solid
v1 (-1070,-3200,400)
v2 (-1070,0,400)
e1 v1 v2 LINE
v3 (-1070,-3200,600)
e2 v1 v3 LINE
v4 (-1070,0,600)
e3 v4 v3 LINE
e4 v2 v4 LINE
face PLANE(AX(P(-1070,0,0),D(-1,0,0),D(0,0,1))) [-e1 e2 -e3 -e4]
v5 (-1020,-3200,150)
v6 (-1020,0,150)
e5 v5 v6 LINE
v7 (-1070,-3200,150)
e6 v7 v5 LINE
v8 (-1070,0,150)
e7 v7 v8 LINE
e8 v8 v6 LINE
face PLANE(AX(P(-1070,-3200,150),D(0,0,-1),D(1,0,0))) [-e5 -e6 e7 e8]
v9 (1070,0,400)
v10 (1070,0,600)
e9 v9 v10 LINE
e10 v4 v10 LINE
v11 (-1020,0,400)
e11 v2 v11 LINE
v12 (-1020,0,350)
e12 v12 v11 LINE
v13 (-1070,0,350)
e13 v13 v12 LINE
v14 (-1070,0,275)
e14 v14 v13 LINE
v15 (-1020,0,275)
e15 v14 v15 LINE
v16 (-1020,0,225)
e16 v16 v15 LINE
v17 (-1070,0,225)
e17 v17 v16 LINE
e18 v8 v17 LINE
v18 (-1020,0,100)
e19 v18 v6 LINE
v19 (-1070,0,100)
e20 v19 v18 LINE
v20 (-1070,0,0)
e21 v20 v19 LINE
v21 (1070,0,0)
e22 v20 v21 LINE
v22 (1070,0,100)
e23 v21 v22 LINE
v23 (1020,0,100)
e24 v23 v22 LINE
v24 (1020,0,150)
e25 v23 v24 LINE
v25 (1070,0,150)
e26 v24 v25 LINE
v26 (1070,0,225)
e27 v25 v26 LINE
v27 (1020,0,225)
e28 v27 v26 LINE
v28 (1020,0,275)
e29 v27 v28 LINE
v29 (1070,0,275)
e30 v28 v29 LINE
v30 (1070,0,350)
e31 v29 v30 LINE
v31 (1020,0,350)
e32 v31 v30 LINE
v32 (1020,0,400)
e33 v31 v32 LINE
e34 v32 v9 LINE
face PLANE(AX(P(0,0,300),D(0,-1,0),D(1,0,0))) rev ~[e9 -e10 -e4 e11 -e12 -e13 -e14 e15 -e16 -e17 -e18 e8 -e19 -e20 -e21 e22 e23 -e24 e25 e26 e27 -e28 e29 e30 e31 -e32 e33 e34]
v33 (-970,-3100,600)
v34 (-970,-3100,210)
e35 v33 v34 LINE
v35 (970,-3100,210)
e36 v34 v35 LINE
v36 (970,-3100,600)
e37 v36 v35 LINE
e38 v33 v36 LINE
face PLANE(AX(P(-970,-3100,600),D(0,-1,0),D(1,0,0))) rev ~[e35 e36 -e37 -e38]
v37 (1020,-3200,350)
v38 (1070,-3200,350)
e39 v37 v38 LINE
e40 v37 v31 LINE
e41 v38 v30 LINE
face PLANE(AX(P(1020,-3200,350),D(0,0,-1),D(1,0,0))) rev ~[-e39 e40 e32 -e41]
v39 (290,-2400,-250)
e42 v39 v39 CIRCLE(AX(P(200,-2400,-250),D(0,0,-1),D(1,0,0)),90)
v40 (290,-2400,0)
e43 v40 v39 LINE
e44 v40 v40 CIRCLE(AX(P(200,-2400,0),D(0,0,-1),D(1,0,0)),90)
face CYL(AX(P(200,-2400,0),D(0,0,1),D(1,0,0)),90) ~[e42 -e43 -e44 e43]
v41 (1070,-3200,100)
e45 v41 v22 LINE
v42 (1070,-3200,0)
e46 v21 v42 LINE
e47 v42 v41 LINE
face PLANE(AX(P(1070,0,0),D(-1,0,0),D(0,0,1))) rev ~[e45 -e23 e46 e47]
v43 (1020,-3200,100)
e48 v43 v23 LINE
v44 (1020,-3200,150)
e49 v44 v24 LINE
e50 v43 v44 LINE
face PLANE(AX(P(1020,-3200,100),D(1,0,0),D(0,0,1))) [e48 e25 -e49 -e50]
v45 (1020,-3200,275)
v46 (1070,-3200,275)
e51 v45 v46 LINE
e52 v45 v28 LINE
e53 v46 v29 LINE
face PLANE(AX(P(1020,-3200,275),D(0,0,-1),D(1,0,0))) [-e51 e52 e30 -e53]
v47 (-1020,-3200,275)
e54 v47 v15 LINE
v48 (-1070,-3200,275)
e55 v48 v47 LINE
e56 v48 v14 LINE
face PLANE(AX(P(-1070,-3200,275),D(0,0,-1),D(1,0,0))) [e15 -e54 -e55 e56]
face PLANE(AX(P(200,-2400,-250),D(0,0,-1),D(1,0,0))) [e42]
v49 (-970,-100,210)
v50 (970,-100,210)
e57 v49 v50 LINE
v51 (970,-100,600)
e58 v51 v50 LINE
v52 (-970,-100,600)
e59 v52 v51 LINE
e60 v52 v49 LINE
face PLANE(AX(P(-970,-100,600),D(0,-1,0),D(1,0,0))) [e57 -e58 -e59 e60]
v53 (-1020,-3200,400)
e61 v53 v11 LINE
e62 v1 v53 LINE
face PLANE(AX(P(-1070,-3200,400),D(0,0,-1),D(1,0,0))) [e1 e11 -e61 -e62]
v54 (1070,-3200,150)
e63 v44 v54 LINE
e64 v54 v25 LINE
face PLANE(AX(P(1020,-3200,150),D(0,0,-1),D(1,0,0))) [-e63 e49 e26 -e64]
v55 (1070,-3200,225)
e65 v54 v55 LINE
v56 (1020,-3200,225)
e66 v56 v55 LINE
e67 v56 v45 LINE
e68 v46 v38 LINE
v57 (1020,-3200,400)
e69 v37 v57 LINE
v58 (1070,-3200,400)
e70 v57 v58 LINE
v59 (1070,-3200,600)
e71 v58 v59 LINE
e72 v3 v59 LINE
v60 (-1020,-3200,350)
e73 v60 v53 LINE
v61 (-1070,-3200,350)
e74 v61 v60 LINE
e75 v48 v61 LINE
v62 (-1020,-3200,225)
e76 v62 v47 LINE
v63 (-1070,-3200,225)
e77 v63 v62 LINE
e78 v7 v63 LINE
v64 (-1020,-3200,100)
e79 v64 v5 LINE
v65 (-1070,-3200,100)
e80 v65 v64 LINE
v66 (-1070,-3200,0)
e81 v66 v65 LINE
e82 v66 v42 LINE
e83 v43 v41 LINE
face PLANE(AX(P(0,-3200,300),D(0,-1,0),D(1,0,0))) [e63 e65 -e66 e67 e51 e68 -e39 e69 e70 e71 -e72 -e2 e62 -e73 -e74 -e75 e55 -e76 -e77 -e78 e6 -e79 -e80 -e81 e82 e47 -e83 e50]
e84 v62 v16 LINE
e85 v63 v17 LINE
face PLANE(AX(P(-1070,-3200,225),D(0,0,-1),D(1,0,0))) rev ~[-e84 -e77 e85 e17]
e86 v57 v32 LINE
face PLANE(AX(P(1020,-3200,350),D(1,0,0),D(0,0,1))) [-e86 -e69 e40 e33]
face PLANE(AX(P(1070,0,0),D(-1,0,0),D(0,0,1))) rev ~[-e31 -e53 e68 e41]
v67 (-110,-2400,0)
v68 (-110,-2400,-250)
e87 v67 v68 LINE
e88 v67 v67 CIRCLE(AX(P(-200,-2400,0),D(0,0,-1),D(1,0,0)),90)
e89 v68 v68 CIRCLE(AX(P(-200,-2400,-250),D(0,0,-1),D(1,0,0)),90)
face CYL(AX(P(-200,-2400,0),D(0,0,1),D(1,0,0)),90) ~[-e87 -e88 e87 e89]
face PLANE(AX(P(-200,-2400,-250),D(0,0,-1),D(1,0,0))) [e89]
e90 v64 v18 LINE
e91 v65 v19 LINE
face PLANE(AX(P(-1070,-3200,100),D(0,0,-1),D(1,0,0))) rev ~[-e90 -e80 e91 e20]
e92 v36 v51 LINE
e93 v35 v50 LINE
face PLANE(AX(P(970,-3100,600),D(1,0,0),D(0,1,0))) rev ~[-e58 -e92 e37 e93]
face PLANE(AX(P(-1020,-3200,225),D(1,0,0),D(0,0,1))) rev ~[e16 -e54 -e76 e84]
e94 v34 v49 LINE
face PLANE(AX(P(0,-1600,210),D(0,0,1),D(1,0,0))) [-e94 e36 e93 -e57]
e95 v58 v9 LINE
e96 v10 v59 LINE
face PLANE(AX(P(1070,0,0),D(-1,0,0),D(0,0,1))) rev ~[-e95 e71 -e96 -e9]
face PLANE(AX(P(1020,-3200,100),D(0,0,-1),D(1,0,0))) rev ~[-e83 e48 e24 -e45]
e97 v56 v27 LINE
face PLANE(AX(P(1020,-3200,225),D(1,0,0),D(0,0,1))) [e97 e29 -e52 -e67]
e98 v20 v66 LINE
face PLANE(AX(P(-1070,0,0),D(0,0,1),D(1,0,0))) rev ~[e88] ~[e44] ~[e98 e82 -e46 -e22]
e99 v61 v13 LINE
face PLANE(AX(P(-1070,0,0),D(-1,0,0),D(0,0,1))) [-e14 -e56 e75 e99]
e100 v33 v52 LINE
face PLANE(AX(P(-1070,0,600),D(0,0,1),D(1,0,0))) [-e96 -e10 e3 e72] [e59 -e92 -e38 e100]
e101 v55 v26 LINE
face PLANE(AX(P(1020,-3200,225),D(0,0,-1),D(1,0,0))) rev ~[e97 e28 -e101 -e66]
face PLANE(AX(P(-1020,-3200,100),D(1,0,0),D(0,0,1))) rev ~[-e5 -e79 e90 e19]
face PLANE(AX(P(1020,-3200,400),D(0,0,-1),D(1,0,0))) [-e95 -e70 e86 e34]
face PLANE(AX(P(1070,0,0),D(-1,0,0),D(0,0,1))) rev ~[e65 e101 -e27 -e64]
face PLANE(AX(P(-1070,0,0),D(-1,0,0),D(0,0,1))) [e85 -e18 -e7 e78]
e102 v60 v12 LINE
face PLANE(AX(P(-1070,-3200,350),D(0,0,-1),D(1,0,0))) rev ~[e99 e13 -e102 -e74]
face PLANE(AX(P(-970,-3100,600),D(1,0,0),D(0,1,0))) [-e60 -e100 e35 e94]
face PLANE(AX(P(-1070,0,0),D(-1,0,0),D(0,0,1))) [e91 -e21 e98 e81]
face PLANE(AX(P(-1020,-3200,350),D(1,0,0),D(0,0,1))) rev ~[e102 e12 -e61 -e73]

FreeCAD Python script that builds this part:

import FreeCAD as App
import Part
import Sketcher
from FreeCAD import Vector

doc = App.newDocument("Part")
body = doc.addObject("PartDesign::Body", "Body")

sketch1 = body.newObject("Sketcher::SketchObject", "Sketch")
sketch1.AttachmentSupport = (doc.getObject("XZ_Plane"), [""])
sketch1.MapMode = "FlatFace"
sketch1.addGeometry(Part.LineSegment(Vector(-1070, 600, 0), Vector(-1070, 0, 0)), False)
sketch1.addGeometry(Part.LineSegment(Vector(-1070, 0, 0), Vector(1070, 0, 0)), False)
sketch1.addGeometry(Part.LineSegment(Vector(1070, 0, 0), Vector(1070, 600, 0)), False)
sketch1.addGeometry(Part.LineSegment(Vector(1070, 600, 0), Vector(-1070, 600, 0)), False)
sketch1.addConstraint(Sketcher.Constraint("Coincident", 0, 2, 1, 1))
sketch1.addConstraint(Sketcher.Constraint("Coincident", 1, 2, 2, 1))
sketch1.addConstraint(Sketcher.Constraint("Coincident", 2, 2, 3, 1))
sketch1.addConstraint(Sketcher.Constraint("Coincident", 3, 2, 0, 1))
sketch1.addConstraint(Sketcher.Constraint("Vertical", 0))
sketch1.addConstraint(Sketcher.Constraint("Horizontal", 1))
sketch1.addConstraint(Sketcher.Constraint("Vertical", 2))
sketch1.addConstraint(Sketcher.Constraint("Horizontal", 3))
sketch1.addConstraint(Sketcher.Constraint("Symmetric", 0, 2, 1, 2, -1, 1))
sketch1.addConstraint(Sketcher.Constraint("DistanceX", 1, 1, 1, 2, 2140.0))
sketch1.addConstraint(Sketcher.Constraint("DistanceY", 0, 2, 0, 1, 600.0))
pad1 = body.newObject("PartDesign::Pad", "Pad")
pad1.Profile = sketch1
pad1.Length = 3200

sketch2 = body.newObject("Sketcher::SketchObject", "Sketch001")
sketch2.AttachmentSupport = (doc.getObject("XY_Plane"), [""])
sketch2.MapMode = "FlatFace"
sketch2.AttachmentOffset = App.Placement(Vector(0, 0, 600), App.Rotation())
sketch2.addGeometry(Part.LineSegment(Vector(-970, -100, 0), Vector(-970, -3100, 0)), False)
sketch2.addGeometry(Part.LineSegment(Vector(-970, -3100, 0), Vector(970, -3100, 0)), False)
sketch2.addGeometry(Part.LineSegment(Vector(970, -3100, 0), Vector(970, -100, 0)), False)
sketch2.addGeometry(Part.LineSegment(Vector(970, -100, 0), Vector(-970, -100, 0)), False)
sketch2.addConstraint(Sketcher.Constraint("Coincident", 0, 2, 1, 1))
sketch2.addConstraint(Sketcher.Constraint("Coincident", 1, 2, 2, 1))
sketch2.addConstraint(Sketcher.Constraint("Coincident", 2, 2, 3, 1))
sketch2.addConstraint(Sketcher.Constraint("Coincident", 3, 2, 0, 1))
sketch2.addConstraint(Sketcher.Constraint("Vertical", 0))
sketch2.addConstraint(Sketcher.Constraint("Horizontal", 1))
sketch2.addConstraint(Sketcher.Constraint("Vertical", 2))
sketch2.addConstraint(Sketcher.Constraint("Horizontal", 3))
sketch2.addConstraint(Sketcher.Constraint("DistanceX", 1, 1, 1, 2, 1940.0))
sketch2.addConstraint(Sketcher.Constraint("DistanceY", 0, 2, 0, 1, 3000.0))
sketch2.addConstraint(Sketcher.Constraint("DistanceX", 0, 2, -1, 1, 970.0))
sketch2.addConstraint(Sketcher.Constraint("DistanceY", 0, 2, -1, 1, 3100.0))
pocket1 = body.newObject("PartDesign::Pocket", "Pocket")
pocket1.Profile = sketch2
pocket1.Length = 390

sketch3 = body.newObject("Sketcher::SketchObject", "Sketch002")
sketch3.AttachmentSupport = (doc.getObject("XY_Plane"), [""])
sketch3.MapMode = "FlatFace"
sketch3.addGeometry(Part.Circle(Vector(-200, -2400, 0), Vector(0, 0, 1), 90), False)
sketch3.addGeometry(Part.Circle(Vector(200, -2400, 0), Vector(0, 0, 1), 90), False)
sketch3.addConstraint(Sketcher.Constraint("Equal", 0, 1))
sketch3.addConstraint(Sketcher.Constraint("Symmetric", 0, 3, 1, 3, -2))
sketch3.addConstraint(Sketcher.Constraint("Diameter", 0, 180.0))
sketch3.addConstraint(Sketcher.Constraint("DistanceX", 0, 3, -1, 1, 200.0))
sketch3.addConstraint(Sketcher.Constraint("DistanceY", 0, 3, -1, 1, 2400.0))
pad2 = body.newObject("PartDesign::Pad", "Pad001")
pad2.Profile = sketch3
pad2.Length = 250
pad2.Reversed = True

sketch4 = body.newObject("Sketcher::SketchObject", "Sketch003")
sketch4.AttachmentSupport = (doc.getObject("XZ_Plane"), [""])
sketch4.MapMode = "FlatFace"
sketch4.AttachmentOffset = App.Placement(Vector(0, 0, 3200), App.Rotation())
sketch4.addGeometry(Part.LineSegment(Vector(1020, 400, 0), Vector(1020, 350, 0)), False)
sketch4.addGeometry(Part.LineSegment(Vector(1020, 350, 0), Vector(1070, 350, 0)), False)
sketch4.addGeometry(Part.LineSegment(Vector(1070, 350, 0), Vector(1070, 400, 0)), False)
sketch4.addGeometry(Part.LineSegment(Vector(1070, 400, 0), Vector(1020, 400, 0)), False)
sketch4.addGeometry(Part.LineSegment(Vector(1020, 275, 0), Vector(1020, 225, 0)), False)
sketch4.addGeometry(Part.LineSegment(Vector(1020, 225, 0), Vector(1070, 225, 0)), False)
sketch4.addGeometry(Part.LineSegment(Vector(1070, 225, 0), Vector(1070, 275, 0)), False)
sketch4.addGeometry(Part.LineSegment(Vector(1070, 275, 0), Vector(1020, 275, 0)), False)
sketch4.addGeometry(Part.LineSegment(Vector(1020, 150, 0), Vector(1020, 100, 0)), False)
sketch4.addGeometry(Part.LineSegment(Vector(1020, 100, 0), Vector(1070, 100, 0)), False)
sketch4.addGeometry(Part.LineSegment(Vector(1070, 100, 0), Vector(1070, 150, 0)), False)
sketch4.addGeometry(Part.LineSegment(Vector(1070, 150, 0), Vector(1020, 150, 0)), False)
sketch4.addGeometry(Part.LineSegment(Vector(-1070, 150, 0), Vector(-1070, 100, 0)), False)
sketch4.addGeometry(Part.LineSegment(Vector(-1070, 100, 0), Vector(-1020, 100, 0)), False)
sketch4.addGeometry(Part.LineSegment(Vector(-1020, 100, 0), Vector(-1020, 150, 0)), False)
sketch4.addGeometry(Part.LineSegment(Vector(-1020, 150, 0), Vector(-1070, 150, 0)), False)
sketch4.addGeometry(Part.LineSegment(Vector(-1070, 275, 0), Vector(-1070, 225, 0)), False)
sketch4.addGeometry(Part.LineSegment(Vector(-1070, 225, 0), Vector(-1020, 225, 0)), False)
sketch4.addGeometry(Part.LineSegment(Vector(-1020, 225, 0), Vector(-1020, 275, 0)), False)
sketch4.addGeometry(Part.LineSegment(Vector(-1020, 275, 0), Vector(-1070, 275, 0)), False)
sketch4.addGeometry(Part.LineSegment(Vector(-1070, 400, 0), Vector(-1070, 350, 0)), False)
sketch4.addGeometry(Part.LineSegment(Vector(-1070, 350, 0), Vector(-1020, 350, 0)), False)
sketch4.addGeometry(Part.LineSegment(Vector(-1020, 350, 0), Vector(-1020, 400, 0)), False)
sketch4.addGeometry(Part.LineSegment(Vector(-1020, 400, 0), Vector(-1070, 400, 0)), False)
sketch4.addConstraint(Sketcher.Constraint("Coincident", 0, 2, 1, 1))
sketch4.addConstraint(Sketcher.Constraint("Coincident", 1, 2, 2, 1))
sketch4.addConstraint(Sketcher.Constraint("Coincident", 2, 2, 3, 1))
sketch4.addConstraint(Sketcher.Constraint("Coincident", 3, 2, 0, 1))
sketch4.addConstraint(Sketcher.Constraint("Coincident", 4, 2, 5, 1))
sketch4.addConstraint(Sketcher.Constraint("Coincident", 5, 2, 6, 1))
sketch4.addConstraint(Sketcher.Constraint("Coincident", 6, 2, 7, 1))
sketch4.addConstraint(Sketcher.Constraint("Coincident", 7, 2, 4, 1))
sketch4.addConstraint(Sketcher.Constraint("Coincident", 8, 2, 9, 1))
sketch4.addConstraint(Sketcher.Constraint("Coincident", 9, 2, 10, 1))
sketch4.addConstraint(Sketcher.Constraint("Coincident", 10, 2, 11, 1))
sketch4.addConstraint(Sketcher.Constraint("Coincident", 11, 2, 8, 1))
sketch4.addConstraint(Sketcher.Constraint("Coincident", 12, 2, 13, 1))
sketch4.addConstraint(Sketcher.Constraint("Coincident", 13, 2, 14, 1))
sketch4.addConstraint(Sketcher.Constraint("Coincident", 14, 2, 15, 1))
sketch4.addConstraint(Sketcher.Constraint("Coincident", 15, 2, 12, 1))
sketch4.addConstraint(Sketcher.Constraint("Coincident", 16, 2, 17, 1))
sketch4.addConstraint(Sketcher.Constraint("Coincident", 17, 2, 18, 1))
sketch4.addConstraint(Sketcher.Constraint("Coincident", 18, 2, 19, 1))
sketch4.addConstraint(Sketcher.Constraint("Coincident", 19, 2, 16, 1))
sketch4.addConstraint(Sketcher.Constraint("Coincident", 20, 2, 21, 1))
sketch4.addConstraint(Sketcher.Constraint("Coincident", 21, 2, 22, 1))
sketch4.addConstraint(Sketcher.Constraint("Coincident", 22, 2, 23, 1))
sketch4.addConstraint(Sketcher.Constraint("Coincident", 23, 2, 20, 1))
sketch4.addConstraint(Sketcher.Constraint("Vertical", 0))
sketch4.addConstraint(Sketcher.Constraint("Horizontal", 1))
sketch4.addConstraint(Sketcher.Constraint("Vertical", 2))
sketch4.addConstraint(Sketcher.Constraint("Horizontal", 3))
sketch4.addConstraint(Sketcher.Constraint("Vertical", 4))
sketch4.addConstraint(Sketcher.Constraint("Horizontal", 5))
sketch4.addConstraint(Sketcher.Constraint("Vertical", 6))
sketch4.addConstraint(Sketcher.Constraint("Horizontal", 7))
sketch4.addConstraint(Sketcher.Constraint("Vertical", 8))
sketch4.addConstraint(Sketcher.Constraint("Horizontal", 9))
sketch4.addConstraint(Sketcher.Constraint("Vertical", 10))
sketch4.addConstraint(Sketcher.Constraint("Horizontal", 11))
sketch4.addConstraint(Sketcher.Constraint("Vertical", 12))
sketch4.addConstraint(Sketcher.Constraint("Horizontal", 13))
sketch4.addConstraint(Sketcher.Constraint("Vertical", 14))
sketch4.addConstraint(Sketcher.Constraint("Horizontal", 15))
sketch4.addConstraint(Sketcher.Constraint("Vertical", 16))
sketch4.addConstraint(Sketcher.Constraint("Horizontal", 17))
sketch4.addConstraint(Sketcher.Constraint("Vertical", 18))
sketch4.addConstraint(Sketcher.Constraint("Horizontal", 19))
sketch4.addConstraint(Sketcher.Constraint("Vertical", 20))
sketch4.addConstraint(Sketcher.Constraint("Horizontal", 21))
sketch4.addConstraint(Sketcher.Constraint("Vertical", 22))
sketch4.addConstraint(Sketcher.Constraint("Horizontal", 23))
sketch4.addConstraint(Sketcher.Constraint("Symmetric", 9, 2, 12, 2, -2))
sketch4.addConstraint(Sketcher.Constraint("Symmetric", 11, 2, 14, 2, -2))
sketch4.addConstraint(Sketcher.Constraint("Symmetric", 5, 2, 16, 2, -2))
sketch4.addConstraint(Sketcher.Constraint("Symmetric", 7, 2, 18, 2, -2))
sketch4.addConstraint(Sketcher.Constraint("Symmetric", 1, 2, 20, 2, -2))
sketch4.addConstraint(Sketcher.Constraint("Symmetric", 3, 2, 22, 2, -2))
sketch4.addConstraint(Sketcher.Constraint("Vertical", 3, 2, 4, 2))
sketch4.addConstraint(Sketcher.Constraint("Vertical", 2, 2, 5, 2))
sketch4.addConstraint(Sketcher.Constraint("Vertical", 7, 2, 8, 2))
sketch4.addConstraint(Sketcher.Constraint("Vertical", 6, 2, 9, 2))
sketch4.addConstraint(Sketcher.Constraint("Equal", 23, 0))
sketch4.addConstraint(Sketcher.Constraint("Equal", 2, 4))
sketch4.addConstraint(Sketcher.Constraint("Equal", 6, 8))
sketch4.addConstraint(Sketcher.Constraint("DistanceX", 1, 1, 1, 2, 50.0))
sketch4.addConstraint(Sketcher.Constraint("DistanceX", -1, 1, 0, 2, 1020.0))
sketch4.addConstraint(Sketcher.Constraint("DistanceY", -1, 1, 0, 2, 350.0))
sketch4.addConstraint(Sketcher.Constraint("DistanceY", -1, 1, 4, 2, 225.0))
sketch4.addConstraint(Sketcher.Constraint("DistanceY", -1, 1, 8, 2, 100.0))
pocket2 = body.newObject("PartDesign::Pocket", "Pocket001")
pocket2.Profile = sketch4
pocket2.Length = 3200

doc.recompute()
